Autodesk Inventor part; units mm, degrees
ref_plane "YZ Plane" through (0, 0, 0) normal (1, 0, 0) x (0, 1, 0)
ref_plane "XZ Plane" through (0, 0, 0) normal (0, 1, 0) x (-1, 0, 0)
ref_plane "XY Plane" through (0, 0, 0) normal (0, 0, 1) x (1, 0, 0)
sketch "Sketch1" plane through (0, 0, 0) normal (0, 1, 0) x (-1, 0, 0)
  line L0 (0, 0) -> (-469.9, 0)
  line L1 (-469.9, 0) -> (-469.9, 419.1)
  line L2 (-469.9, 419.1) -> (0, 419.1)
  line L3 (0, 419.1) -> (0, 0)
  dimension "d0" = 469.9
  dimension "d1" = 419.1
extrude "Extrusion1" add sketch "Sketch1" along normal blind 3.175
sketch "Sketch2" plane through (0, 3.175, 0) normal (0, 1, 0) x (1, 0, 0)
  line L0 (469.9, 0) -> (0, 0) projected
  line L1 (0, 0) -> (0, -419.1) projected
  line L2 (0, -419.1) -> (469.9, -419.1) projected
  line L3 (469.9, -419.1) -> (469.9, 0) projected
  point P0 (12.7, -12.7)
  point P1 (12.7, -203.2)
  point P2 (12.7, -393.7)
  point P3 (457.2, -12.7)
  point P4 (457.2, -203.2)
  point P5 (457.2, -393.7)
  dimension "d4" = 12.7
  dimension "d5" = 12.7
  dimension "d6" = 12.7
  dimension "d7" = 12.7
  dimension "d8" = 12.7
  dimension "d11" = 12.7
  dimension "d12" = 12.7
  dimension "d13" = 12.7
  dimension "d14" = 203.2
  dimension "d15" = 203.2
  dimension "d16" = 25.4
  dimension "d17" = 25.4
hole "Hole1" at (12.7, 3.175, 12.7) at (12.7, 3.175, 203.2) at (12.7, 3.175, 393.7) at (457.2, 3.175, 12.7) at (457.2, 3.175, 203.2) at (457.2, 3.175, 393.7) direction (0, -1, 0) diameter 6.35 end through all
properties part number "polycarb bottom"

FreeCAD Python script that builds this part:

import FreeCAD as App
import Part
import Sketcher
Q = App.Units.Quantity


def add_polygon(sketch, points):
    """Adds a closed chain of lines whose ends are joined by coincident constraints."""
    first, n = sketch.GeometryCount, len(points)
    for a, b in zip(points, points[1:] + points[:1]):
        sketch.addGeometry(Part.LineSegment(App.Vector(*a, 0), App.Vector(*b, 0)), False)
    for i in range(n):
        sketch.addConstraint(Sketcher.Constraint("Coincident", first + i, 2, first + (i + 1) % n, 1))

doc = App.newDocument("Part")
body = doc.addObject("PartDesign::Body", "Body")

sketch1 = doc.addObject("Sketcher::SketchObject", "Sketch")
body.addObject(sketch1)
sketch1.AttachmentSupport = (doc.XZ_Plane, [""])
sketch1.MapMode = "FlatFace"
add_polygon(sketch1, [(470, 0), (0, 0), (0, 419), (470, 419)])
sketch1.addConstraint([
    Sketcher.Constraint("Horizontal", 0),
    Sketcher.Constraint("Vertical", 1),
    Sketcher.Constraint("Horizontal", 2),
    Sketcher.Constraint("Vertical", 3),
    Sketcher.Constraint("Coincident", 0, 2, -1, 1),
    Sketcher.Constraint("DistanceX", 0, 2, 0, 1, Q("18.5 in")),
    Sketcher.Constraint("DistanceY", 1, 1, 1, 2, Q("16.5 in")),
])
pad1 = doc.addObject("PartDesign::Pad", "Pad")
body.addObject(pad1)
pad1.Profile = sketch1
pad1.Length = Q("0.125 in")
pad1.Reversed = True

sketch2 = doc.addObject("Sketcher::SketchObject", "Sketch001")
body.addObject(sketch2)
sketch2.AttachmentSupport = (doc.XZ_Plane, [""])
sketch2.MapMode = "FlatFace"
sketch2.AttachmentOffset = App.Placement(App.Vector(0, 0, -0.125 * 25.4), App.Rotation())
sketch2.addGeometry([
    Part.Circle(App.Vector(12.7, 12.7, 0), App.Vector(0, 0, 1), 3.2),
    Part.Circle(App.Vector(12.7, 203.2, 0), App.Vector(0, 0, 1), 3.2),
    Part.Circle(App.Vector(12.7, 393.7, 0), App.Vector(0, 0, 1), 3.2),
    Part.Circle(App.Vector(457.2, 12.7, 0), App.Vector(0, 0, 1), 3.2),
    Part.Circle(App.Vector(457.2, 203.2, 0), App.Vector(0, 0, 1), 3.2),
    Part.Circle(App.Vector(457.2, 393.7, 0), App.Vector(0, 0, 1), 3.2),
], False)
sketch2.addConstraint([
    Sketcher.Constraint("Equal", 0, 1),
    Sketcher.Constraint("Equal", 1, 2),
    Sketcher.Constraint("Equal", 2, 3),
    Sketcher.Constraint("Equal", 3, 4),
    Sketcher.Constraint("Equal", 4, 5),
    Sketcher.Constraint("Horizontal", 0, 3, 3, 3),
    Sketcher.Constraint("Horizontal", 1, 3, 4, 3),
    Sketcher.Constraint("Horizontal", 2, 3, 5, 3),
    Sketcher.Constraint("Vertical", 0, 3, 1, 3),
    Sketcher.Constraint("Vertical", 1, 3, 2, 3),
    Sketcher.Constraint("Vertical", 3, 3, 4, 3),
    Sketcher.Constraint("Vertical", 4, 3, 5, 3),
    Sketcher.Constraint("Diameter", 0, Q("0.25 in")),
    Sketcher.Constraint("DistanceY", -1, 1, 1, 3, Q("8 in")),
    Sketcher.Constraint("DistanceX", -1, 1, 3, 3, Q("18 in")),
    Sketcher.Constraint("DistanceY", 0, 3, 2, 3, Q("15 in")),
    Sketcher.Constraint("DistanceX", -1, 1, 0, 3, Q("0.5 in")),
    Sketcher.Constraint("DistanceY", -1, 1, 0, 3, Q("0.5 in")),
])
doc.recompute()
hole = doc.addObject("PartDesign::Hole", "Hole")
body.addObject(hole)
hole.Profile = sketch2
hole.ThreadType = "None"
hole.Diameter = Q("0.25 in")
hole.DepthType = "ThroughAll"
hole.Reversed = True

doc.recompute()
